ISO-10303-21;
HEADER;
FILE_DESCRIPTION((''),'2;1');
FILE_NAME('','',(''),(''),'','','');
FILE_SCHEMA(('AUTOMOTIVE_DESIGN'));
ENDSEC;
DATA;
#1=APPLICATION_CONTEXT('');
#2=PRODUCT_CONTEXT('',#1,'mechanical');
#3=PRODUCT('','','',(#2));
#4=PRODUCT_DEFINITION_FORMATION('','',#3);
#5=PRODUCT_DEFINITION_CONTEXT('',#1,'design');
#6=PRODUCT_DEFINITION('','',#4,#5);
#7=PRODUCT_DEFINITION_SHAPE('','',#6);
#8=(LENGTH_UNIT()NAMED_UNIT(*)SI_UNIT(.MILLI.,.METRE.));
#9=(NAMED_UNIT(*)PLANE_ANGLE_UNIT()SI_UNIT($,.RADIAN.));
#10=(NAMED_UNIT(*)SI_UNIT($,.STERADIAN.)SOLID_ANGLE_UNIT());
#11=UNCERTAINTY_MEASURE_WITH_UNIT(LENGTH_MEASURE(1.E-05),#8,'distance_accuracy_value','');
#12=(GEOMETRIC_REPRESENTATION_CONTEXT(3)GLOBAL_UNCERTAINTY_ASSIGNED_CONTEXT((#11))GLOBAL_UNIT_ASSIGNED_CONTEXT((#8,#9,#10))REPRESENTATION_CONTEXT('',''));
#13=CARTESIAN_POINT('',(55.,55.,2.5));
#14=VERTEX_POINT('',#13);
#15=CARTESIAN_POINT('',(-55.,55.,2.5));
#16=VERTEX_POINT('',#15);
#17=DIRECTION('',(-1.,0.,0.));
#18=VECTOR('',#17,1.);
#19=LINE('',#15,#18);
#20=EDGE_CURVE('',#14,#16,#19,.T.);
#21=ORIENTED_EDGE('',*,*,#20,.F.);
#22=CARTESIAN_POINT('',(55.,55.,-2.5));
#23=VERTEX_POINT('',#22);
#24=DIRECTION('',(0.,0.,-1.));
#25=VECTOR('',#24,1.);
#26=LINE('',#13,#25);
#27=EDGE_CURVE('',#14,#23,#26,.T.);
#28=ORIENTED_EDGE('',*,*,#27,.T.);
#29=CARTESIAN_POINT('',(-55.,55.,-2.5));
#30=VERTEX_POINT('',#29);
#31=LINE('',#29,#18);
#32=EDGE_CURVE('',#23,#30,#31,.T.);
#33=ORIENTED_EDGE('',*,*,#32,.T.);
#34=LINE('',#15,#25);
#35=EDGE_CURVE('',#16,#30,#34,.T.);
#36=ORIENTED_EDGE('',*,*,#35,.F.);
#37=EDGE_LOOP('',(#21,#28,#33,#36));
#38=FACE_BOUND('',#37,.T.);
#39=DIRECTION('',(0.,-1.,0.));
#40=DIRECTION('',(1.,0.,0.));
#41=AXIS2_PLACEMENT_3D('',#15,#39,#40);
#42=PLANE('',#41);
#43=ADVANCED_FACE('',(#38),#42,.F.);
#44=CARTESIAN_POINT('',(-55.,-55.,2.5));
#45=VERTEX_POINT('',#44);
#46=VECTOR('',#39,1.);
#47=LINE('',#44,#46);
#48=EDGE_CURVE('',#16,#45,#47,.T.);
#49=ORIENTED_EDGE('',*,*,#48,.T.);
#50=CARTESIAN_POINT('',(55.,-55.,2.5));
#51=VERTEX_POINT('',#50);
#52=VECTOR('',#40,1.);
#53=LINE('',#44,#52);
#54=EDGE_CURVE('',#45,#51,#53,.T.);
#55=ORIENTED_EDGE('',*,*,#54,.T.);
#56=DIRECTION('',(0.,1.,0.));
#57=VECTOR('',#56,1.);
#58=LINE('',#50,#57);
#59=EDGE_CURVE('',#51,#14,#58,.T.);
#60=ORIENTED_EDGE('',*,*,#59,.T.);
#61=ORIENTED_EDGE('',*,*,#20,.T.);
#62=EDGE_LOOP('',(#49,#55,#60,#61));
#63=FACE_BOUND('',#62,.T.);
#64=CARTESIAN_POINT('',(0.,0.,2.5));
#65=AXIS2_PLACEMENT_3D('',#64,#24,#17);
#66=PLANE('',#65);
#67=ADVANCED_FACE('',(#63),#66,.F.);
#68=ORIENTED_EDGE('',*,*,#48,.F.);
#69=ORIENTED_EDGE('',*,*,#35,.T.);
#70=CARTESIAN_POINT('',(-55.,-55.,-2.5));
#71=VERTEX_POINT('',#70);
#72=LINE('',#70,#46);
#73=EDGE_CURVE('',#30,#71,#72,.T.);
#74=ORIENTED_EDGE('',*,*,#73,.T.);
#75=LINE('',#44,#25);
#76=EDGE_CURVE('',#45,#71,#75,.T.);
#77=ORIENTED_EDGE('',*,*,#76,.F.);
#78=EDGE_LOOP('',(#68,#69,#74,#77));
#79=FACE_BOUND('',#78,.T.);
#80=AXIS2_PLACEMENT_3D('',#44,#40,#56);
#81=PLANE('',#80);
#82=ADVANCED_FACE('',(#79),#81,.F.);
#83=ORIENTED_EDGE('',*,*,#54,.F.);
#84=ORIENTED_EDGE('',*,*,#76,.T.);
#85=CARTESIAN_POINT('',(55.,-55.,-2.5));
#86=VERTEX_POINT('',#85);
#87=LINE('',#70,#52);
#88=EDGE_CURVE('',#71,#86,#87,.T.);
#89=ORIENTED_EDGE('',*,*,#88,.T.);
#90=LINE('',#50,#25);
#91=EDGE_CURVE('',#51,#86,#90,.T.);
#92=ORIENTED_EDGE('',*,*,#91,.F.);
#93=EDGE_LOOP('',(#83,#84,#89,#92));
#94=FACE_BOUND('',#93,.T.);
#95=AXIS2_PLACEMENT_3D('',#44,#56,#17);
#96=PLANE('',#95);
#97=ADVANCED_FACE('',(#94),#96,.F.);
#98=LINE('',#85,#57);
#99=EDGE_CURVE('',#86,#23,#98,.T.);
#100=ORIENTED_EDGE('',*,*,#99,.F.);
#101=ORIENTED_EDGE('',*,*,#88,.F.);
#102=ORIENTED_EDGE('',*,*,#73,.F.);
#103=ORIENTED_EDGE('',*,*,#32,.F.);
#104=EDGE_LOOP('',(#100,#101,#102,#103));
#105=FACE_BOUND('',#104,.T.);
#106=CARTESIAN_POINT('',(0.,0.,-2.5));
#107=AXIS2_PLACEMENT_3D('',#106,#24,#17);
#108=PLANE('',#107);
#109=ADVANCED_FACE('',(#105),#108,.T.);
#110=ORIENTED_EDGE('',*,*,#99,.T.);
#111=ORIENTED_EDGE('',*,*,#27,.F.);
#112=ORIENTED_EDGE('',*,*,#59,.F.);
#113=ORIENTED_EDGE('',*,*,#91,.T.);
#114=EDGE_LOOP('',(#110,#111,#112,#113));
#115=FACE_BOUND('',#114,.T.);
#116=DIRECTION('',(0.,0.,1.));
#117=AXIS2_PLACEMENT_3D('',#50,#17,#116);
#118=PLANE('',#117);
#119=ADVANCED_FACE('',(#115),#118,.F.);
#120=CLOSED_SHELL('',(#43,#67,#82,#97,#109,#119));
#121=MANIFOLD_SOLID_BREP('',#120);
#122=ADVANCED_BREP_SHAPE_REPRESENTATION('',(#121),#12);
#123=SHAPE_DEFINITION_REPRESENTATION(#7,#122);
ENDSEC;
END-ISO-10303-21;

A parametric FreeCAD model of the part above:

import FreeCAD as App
import Part
import Sketcher
from FreeCAD import Vector

doc = App.newDocument("Part")
params = doc.addObject("Spreadsheet::Sheet", "Params")
for row, (alias, value) in enumerate([
    ("sketch1_width", "110 mm"),
    ("pad1_length", "5 mm"),
], start=1):
    params.set(f"A{row}", alias)
    params.set(f"B{row}", "=" + value)
    params.setAlias(f"B{row}", alias)

body = doc.addObject("PartDesign::Body", "Body")

sketch1 = doc.addObject("Sketcher::SketchObject", "Sketch")
body.addObject(sketch1)
sketch1.AttachmentSupport = (doc.XY_Plane, [""])
sketch1.MapMode = "FlatFace"
sketch1.addGeometry(Part.LineSegment(Vector(-55, 55, 0), Vector(-55, -55, 0)), False)
sketch1.addGeometry(Part.LineSegment(Vector(-55, -55, 0), Vector(55, -55, 0)), False)
sketch1.addGeometry(Part.LineSegment(Vector(55, -55, 0), Vector(55, 55, 0)), False)
sketch1.addGeometry(Part.LineSegment(Vector(55, 55, 0), Vector(-55, 55, 0)), False)
sketch1.addConstraint(Sketcher.Constraint("Coincident", 0, 2, 1, 1))
sketch1.addConstraint(Sketcher.Constraint("Coincident", 1, 2, 2, 1))
sketch1.addConstraint(Sketcher.Constraint("Coincident", 2, 2, 3, 1))
sketch1.addConstraint(Sketcher.Constraint("Coincident", 3, 2, 0, 1))
sketch1.addConstraint(Sketcher.Constraint("Vertical", 0))
sketch1.addConstraint(Sketcher.Constraint("Horizontal", 1))
sketch1.addConstraint(Sketcher.Constraint("Vertical", 2))
sketch1.addConstraint(Sketcher.Constraint("Horizontal", 3))
sketch1.addConstraint(Sketcher.Constraint("Symmetric", 0, 2, 2, 2, -1, 1))
sketch1.addConstraint(Sketcher.Constraint("Equal", 3, 0))
sketch1.addConstraint(Sketcher.Constraint("DistanceX", 1, 1, 1, 2, 110.0))
sketch1.setExpression("Constraints[10]", "Params.sketch1_width")
pad1 = doc.addObject("PartDesign::Pad", "Pad")
body.addObject(pad1)
pad1.Profile = sketch1
pad1.setExpression("Length", "Params.pad1_length")
pad1.Midplane = True

doc.recompute()
